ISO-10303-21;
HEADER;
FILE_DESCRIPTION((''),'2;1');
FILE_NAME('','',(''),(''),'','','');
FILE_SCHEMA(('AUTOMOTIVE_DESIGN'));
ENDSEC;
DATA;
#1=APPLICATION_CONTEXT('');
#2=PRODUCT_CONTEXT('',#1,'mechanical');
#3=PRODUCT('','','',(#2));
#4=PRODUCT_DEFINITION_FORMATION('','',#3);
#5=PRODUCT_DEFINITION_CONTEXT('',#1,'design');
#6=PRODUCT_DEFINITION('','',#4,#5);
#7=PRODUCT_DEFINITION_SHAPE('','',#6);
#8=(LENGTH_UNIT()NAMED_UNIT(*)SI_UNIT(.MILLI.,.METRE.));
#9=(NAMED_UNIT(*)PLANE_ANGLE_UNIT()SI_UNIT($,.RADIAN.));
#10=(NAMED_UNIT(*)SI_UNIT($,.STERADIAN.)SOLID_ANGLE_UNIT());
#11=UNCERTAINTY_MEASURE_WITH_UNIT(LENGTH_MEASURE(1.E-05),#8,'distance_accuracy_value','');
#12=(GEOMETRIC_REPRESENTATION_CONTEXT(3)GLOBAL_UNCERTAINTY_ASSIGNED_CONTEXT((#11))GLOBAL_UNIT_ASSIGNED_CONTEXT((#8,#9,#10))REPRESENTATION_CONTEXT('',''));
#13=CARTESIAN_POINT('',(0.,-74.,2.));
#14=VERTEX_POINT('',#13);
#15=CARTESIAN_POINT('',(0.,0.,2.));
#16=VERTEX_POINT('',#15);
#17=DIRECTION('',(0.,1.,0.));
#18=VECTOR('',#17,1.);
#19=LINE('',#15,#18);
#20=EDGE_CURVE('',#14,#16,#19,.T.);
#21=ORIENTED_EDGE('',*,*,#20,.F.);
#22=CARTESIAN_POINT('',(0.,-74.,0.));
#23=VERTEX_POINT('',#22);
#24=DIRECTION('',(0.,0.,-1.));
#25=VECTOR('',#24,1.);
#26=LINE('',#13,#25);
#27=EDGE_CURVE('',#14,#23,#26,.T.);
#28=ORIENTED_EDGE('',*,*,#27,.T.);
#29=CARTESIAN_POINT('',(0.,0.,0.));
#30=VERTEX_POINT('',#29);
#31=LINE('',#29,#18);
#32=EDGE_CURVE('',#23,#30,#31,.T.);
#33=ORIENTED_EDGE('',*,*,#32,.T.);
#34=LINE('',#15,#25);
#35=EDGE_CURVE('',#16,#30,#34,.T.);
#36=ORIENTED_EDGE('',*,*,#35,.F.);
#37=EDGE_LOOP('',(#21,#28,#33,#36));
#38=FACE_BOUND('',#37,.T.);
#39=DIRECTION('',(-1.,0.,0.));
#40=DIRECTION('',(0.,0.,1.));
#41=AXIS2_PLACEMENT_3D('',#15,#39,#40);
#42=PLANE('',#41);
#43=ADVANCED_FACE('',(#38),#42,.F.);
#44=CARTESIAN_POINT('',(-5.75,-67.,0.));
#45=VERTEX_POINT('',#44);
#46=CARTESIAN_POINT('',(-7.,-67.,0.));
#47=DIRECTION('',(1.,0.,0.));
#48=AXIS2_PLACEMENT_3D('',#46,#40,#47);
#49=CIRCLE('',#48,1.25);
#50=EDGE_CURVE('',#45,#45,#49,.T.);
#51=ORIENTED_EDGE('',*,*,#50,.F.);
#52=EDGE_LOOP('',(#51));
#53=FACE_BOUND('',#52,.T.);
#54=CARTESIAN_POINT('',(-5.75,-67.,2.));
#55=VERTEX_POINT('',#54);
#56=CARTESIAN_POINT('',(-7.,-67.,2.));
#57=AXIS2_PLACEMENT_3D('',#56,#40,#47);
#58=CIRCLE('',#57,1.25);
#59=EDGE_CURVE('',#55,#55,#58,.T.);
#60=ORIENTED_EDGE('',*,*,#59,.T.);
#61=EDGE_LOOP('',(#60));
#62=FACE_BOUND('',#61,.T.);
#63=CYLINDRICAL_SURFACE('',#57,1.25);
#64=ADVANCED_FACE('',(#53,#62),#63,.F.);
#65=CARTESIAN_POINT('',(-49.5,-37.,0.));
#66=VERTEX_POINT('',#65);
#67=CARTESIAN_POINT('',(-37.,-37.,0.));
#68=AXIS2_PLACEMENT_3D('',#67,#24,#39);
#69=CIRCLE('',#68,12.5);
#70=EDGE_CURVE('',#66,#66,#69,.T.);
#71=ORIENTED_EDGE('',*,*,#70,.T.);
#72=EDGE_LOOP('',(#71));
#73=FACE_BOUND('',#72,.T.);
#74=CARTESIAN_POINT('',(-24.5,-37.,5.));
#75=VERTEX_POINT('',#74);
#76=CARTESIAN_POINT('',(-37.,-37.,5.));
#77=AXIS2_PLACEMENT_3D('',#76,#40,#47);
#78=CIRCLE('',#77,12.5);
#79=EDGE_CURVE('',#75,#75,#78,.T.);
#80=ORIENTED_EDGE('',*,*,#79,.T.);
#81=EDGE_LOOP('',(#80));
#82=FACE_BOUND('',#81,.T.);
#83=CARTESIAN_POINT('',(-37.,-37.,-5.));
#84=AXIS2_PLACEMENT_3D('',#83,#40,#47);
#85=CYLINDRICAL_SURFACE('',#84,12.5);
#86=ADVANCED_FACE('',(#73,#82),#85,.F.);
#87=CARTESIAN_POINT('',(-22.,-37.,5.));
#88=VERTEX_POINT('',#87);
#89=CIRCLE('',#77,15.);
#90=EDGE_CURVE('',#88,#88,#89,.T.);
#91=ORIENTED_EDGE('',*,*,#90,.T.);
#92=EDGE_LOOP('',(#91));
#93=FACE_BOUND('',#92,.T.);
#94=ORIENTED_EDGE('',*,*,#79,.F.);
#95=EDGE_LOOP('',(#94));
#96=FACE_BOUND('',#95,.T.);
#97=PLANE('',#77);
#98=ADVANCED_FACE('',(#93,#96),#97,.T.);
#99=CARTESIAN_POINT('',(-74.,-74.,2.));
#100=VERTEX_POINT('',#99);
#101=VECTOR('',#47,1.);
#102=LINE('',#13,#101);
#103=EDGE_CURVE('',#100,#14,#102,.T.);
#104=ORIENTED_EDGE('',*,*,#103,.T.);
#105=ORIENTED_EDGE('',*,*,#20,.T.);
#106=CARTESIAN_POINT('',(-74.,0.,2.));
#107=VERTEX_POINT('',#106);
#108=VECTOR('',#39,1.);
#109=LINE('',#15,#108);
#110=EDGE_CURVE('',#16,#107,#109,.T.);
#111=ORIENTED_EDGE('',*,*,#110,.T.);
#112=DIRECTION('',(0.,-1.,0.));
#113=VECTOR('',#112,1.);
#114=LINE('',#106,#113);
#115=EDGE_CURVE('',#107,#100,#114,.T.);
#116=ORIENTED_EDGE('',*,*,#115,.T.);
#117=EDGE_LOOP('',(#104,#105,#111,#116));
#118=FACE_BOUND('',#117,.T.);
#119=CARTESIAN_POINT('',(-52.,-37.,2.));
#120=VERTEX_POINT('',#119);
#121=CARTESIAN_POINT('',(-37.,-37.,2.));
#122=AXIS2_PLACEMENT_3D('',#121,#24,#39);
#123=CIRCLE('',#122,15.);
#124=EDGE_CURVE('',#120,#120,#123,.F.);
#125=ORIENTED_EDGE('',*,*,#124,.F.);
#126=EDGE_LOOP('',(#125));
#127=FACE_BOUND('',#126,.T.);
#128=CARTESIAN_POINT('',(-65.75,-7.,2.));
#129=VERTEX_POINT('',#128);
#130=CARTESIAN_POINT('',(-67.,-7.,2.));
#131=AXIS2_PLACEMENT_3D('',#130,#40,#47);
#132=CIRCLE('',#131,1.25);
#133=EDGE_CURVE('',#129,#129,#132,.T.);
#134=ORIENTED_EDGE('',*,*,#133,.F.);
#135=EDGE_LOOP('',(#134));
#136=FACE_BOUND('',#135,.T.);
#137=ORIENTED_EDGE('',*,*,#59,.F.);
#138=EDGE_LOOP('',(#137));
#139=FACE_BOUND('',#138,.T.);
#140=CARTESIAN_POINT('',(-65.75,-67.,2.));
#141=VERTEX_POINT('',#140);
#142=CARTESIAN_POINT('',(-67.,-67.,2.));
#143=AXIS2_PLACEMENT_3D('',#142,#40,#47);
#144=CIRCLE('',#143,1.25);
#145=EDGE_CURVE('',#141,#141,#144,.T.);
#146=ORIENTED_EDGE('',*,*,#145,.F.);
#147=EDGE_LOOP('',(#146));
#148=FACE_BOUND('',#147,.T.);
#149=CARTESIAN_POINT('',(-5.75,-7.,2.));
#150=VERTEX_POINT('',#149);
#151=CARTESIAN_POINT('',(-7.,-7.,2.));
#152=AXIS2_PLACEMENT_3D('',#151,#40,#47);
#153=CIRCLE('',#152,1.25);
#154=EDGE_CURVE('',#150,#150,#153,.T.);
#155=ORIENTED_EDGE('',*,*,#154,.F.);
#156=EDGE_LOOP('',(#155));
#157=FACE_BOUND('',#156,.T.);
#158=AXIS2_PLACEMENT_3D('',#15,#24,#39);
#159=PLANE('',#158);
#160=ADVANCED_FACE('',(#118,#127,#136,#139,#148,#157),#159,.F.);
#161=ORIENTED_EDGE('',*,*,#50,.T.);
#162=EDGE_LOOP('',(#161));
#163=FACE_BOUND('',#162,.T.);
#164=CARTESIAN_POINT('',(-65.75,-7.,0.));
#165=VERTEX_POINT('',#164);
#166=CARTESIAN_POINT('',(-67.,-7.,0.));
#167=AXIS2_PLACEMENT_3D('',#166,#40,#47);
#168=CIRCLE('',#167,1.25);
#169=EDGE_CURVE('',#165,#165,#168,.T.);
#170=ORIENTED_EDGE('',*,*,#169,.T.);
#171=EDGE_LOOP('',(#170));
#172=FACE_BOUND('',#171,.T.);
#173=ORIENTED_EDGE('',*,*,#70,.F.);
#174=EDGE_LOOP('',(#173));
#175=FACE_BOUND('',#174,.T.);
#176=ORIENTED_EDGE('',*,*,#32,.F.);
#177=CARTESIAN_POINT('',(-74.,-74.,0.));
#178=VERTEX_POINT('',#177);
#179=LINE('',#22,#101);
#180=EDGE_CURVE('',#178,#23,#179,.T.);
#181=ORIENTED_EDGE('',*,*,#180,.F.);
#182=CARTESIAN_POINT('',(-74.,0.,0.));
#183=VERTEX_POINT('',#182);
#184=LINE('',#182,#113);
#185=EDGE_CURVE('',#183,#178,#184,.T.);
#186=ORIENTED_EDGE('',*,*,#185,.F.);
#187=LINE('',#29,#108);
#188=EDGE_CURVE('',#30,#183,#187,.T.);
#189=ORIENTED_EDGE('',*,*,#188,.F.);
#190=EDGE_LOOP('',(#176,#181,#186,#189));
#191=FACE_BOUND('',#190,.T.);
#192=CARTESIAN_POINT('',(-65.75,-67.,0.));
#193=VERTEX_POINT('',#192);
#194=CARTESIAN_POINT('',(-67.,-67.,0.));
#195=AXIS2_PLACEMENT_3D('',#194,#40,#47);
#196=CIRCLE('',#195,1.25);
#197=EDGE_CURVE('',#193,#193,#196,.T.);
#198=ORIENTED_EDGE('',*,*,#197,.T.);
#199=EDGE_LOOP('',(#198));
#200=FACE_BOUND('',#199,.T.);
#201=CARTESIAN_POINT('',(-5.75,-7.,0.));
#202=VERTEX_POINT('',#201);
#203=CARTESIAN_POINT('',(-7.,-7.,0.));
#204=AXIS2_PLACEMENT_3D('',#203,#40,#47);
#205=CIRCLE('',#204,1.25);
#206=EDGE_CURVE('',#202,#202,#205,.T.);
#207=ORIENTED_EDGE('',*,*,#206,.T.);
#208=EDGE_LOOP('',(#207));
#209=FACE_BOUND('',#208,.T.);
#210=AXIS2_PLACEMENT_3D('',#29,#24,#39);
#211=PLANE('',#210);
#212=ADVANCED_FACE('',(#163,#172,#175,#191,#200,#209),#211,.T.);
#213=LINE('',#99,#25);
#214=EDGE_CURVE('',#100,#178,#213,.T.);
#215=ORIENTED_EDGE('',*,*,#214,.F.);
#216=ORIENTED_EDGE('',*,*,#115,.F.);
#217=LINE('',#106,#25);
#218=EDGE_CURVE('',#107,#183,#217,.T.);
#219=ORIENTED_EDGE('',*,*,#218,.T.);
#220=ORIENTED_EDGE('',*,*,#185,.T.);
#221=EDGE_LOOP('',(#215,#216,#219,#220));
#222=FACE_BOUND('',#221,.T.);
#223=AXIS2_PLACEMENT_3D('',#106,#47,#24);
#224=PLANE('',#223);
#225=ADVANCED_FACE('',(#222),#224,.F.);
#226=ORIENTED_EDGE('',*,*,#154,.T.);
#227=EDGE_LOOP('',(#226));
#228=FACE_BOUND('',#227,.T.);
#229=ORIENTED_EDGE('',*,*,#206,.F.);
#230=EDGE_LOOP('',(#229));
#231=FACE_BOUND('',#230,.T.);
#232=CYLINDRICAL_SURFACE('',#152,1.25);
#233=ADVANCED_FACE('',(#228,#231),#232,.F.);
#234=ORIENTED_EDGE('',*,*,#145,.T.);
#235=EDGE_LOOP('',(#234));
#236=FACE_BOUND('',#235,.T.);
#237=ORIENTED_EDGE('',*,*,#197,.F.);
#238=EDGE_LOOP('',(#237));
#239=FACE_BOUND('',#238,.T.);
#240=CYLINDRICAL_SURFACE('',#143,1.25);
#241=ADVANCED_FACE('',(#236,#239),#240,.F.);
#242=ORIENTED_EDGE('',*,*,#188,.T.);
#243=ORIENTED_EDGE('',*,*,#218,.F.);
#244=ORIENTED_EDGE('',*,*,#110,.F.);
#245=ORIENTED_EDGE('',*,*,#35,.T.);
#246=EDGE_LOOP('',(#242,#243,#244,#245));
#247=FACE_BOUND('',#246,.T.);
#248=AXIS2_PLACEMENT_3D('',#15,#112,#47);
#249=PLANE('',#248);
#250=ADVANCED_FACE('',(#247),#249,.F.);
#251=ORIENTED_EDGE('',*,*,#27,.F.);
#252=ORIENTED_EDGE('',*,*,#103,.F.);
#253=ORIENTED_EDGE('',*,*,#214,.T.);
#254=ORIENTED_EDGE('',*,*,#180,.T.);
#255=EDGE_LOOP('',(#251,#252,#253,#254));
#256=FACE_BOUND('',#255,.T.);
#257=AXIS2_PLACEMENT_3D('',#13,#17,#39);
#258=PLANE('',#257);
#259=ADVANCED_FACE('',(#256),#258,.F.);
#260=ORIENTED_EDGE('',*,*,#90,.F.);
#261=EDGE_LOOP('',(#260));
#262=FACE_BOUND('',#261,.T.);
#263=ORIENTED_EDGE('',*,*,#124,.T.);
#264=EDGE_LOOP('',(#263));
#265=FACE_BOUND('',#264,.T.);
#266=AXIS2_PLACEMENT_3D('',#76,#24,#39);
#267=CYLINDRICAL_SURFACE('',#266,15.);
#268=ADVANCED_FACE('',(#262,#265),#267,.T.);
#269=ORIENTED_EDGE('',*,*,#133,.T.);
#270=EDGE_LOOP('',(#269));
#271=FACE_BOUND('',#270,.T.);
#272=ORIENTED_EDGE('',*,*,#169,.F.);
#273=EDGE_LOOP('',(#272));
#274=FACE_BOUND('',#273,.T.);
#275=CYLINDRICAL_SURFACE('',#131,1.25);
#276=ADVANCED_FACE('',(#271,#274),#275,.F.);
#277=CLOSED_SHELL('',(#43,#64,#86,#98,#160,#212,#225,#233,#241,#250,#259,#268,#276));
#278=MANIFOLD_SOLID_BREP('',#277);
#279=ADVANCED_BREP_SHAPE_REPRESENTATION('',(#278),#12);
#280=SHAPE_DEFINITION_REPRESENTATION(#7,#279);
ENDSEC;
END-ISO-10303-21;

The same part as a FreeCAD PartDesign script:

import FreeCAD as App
import Part
import Sketcher

doc = App.newDocument("Part")
body = doc.addObject("PartDesign::Body", "Body")

# Sketch on XY plane
sketch1 = body.newObject("Sketcher::SketchObject", "Sketch")
sketch1.AttachmentSupport = (doc.getObject("XY_Plane"), [""])
sketch1.MapMode = "FlatFace"
sketch1.addGeometry(Part.LineSegment(App.Vector(-74, 0, 0), App.Vector(-74, -74, 0)), False)
sketch1.addGeometry(Part.LineSegment(App.Vector(-74, -74, 0), App.Vector(0, -74, 0)), False)
sketch1.addGeometry(Part.LineSegment(App.Vector(0, -74, 0), App.Vector(0, 0, 0)), False)
sketch1.addGeometry(Part.LineSegment(App.Vector(0, 0, 0), App.Vector(-74, 0, 0)), False)
sketch1.addConstraint(Sketcher.Constraint("Coincident", 0, 2, 1, 1))
sketch1.addConstraint(Sketcher.Constraint("Coincident", 1, 2, 2, 1))
sketch1.addConstraint(Sketcher.Constraint("Coincident", 2, 2, 3, 1))
sketch1.addConstraint(Sketcher.Constraint("Coincident", 3, 2, 0, 1))
sketch1.addConstraint(Sketcher.Constraint("Vertical", 0))
sketch1.addConstraint(Sketcher.Constraint("Horizontal", 1))
sketch1.addConstraint(Sketcher.Constraint("Vertical", 2))
sketch1.addConstraint(Sketcher.Constraint("Horizontal", 3))
sketch1.addConstraint(Sketcher.Constraint("Coincident", 2, 2, -1, 1))
sketch1.addConstraint(Sketcher.Constraint("Equal", 3, 0))
sketch1.addConstraint(Sketcher.Constraint("DistanceX", 1, 1, 1, 2, 74.0))
pad1 = body.newObject("PartDesign::Pad", "Pad")
pad1.Profile = sketch1
pad1.Length = 2

# Sketch on XY plane
sketch2 = body.newObject("Sketcher::SketchObject", "Sketch001")
sketch2.AttachmentSupport = (doc.getObject("XY_Plane"), [""])
sketch2.MapMode = "FlatFace"
sketch2.AttachmentOffset = App.Placement(App.Vector(0, 0, 2), App.Rotation())
sketch2.addGeometry(Part.Circle(App.Vector(-37, -37, 0), App.Vector(0, 0, 1), 15), False)
sketch2.addConstraint(Sketcher.Constraint("Diameter", 0, 30.0))
sketch2.addConstraint(Sketcher.Constraint("DistanceX", 0, 3, -1, 1, 37.0))
sketch2.addConstraint(Sketcher.Constraint("DistanceY", 0, 3, -1, 1, 37.0))
pad2 = body.newObject("PartDesign::Pad", "Pad001")
pad2.Profile = sketch2
pad2.Length = 3

# Sketch on XY plane
sketch3 = body.newObject("Sketcher::SketchObject", "Sketch002")
sketch3.AttachmentSupport = (doc.getObject("XY_Plane"), [""])
sketch3.MapMode = "FlatFace"
sketch3.AttachmentOffset = App.Placement(App.Vector(0, 0, 5), App.Rotation())
sketch3.addGeometry(Part.Circle(App.Vector(-37, -37, 0), App.Vector(0, 0, 1), 12.5), False)
sketch3.addConstraint(Sketcher.Constraint("Diameter", 0, 25.0))
sketch3.addConstraint(Sketcher.Constraint("DistanceX", 0, 3, -1, 1, 37.0))
sketch3.addConstraint(Sketcher.Constraint("DistanceY", 0, 3, -1, 1, 37.0))
pocket1 = body.newObject("PartDesign::Pocket", "Pocket")
pocket1.Profile = sketch3
pocket1.Length = 10

# Sketch on XY plane
sketch4 = body.newObject("Sketcher::SketchObject", "Sketch003")
sketch4.AttachmentSupport = (doc.getObject("XY_Plane"), [""])
sketch4.MapMode = "FlatFace"
sketch4.AttachmentOffset = App.Placement(App.Vector(0, 0, 2), App.Rotation())
sketch4.addGeometry(Part.Circle(App.Vector(-67, -67, 0), App.Vector(0, 0, 1), 1.25), False)
sketch4.addGeometry(Part.Circle(App.Vector(-7, -67, 0), App.Vector(0, 0, 1), 1.25), False)
sketch4.addConstraint(Sketcher.Constraint("Equal", 0, 1))
sketch4.addConstraint(Sketcher.Constraint("Horizontal", 0, 3, 1, 3))
sketch4.addConstraint(Sketcher.Constraint("Diameter", 0, 2.5))
sketch4.addConstraint(Sketcher.Constraint("DistanceX", 0, 3, -1, 1, 67.0))
sketch4.addConstraint(Sketcher.Constraint("DistanceY", 0, 3, -1, 1, 67.0))
sketch4.addConstraint(Sketcher.Constraint("DistanceX", 1, 3, -1, 1, 7.0))
doc.recompute()
hole = body.newObject("PartDesign::Hole", "Hole")
hole.Profile = sketch4
hole.ThreadType = "None"
hole.Diameter = 2.5
hole.DepthType = "ThroughAll"
doc.recompute()

datumplane = body.newObject("PartDesign::Plane", "DatumPlane")
datumplane.AttachmentSupport = (doc.getObject("XZ_Plane"), [""])
datumplane.MapMode = "FlatFace"
datumplane.AttachmentOffset = App.Placement(App.Vector(0, 0, 37), App.Rotation())
mirrored = body.newObject("PartDesign::Mirrored", "Mirrored")
mirrored.Originals = [hole]
mirrored.MirrorPlane = (datumplane, [""])
body.Tip = mirrored

doc.recompute()
